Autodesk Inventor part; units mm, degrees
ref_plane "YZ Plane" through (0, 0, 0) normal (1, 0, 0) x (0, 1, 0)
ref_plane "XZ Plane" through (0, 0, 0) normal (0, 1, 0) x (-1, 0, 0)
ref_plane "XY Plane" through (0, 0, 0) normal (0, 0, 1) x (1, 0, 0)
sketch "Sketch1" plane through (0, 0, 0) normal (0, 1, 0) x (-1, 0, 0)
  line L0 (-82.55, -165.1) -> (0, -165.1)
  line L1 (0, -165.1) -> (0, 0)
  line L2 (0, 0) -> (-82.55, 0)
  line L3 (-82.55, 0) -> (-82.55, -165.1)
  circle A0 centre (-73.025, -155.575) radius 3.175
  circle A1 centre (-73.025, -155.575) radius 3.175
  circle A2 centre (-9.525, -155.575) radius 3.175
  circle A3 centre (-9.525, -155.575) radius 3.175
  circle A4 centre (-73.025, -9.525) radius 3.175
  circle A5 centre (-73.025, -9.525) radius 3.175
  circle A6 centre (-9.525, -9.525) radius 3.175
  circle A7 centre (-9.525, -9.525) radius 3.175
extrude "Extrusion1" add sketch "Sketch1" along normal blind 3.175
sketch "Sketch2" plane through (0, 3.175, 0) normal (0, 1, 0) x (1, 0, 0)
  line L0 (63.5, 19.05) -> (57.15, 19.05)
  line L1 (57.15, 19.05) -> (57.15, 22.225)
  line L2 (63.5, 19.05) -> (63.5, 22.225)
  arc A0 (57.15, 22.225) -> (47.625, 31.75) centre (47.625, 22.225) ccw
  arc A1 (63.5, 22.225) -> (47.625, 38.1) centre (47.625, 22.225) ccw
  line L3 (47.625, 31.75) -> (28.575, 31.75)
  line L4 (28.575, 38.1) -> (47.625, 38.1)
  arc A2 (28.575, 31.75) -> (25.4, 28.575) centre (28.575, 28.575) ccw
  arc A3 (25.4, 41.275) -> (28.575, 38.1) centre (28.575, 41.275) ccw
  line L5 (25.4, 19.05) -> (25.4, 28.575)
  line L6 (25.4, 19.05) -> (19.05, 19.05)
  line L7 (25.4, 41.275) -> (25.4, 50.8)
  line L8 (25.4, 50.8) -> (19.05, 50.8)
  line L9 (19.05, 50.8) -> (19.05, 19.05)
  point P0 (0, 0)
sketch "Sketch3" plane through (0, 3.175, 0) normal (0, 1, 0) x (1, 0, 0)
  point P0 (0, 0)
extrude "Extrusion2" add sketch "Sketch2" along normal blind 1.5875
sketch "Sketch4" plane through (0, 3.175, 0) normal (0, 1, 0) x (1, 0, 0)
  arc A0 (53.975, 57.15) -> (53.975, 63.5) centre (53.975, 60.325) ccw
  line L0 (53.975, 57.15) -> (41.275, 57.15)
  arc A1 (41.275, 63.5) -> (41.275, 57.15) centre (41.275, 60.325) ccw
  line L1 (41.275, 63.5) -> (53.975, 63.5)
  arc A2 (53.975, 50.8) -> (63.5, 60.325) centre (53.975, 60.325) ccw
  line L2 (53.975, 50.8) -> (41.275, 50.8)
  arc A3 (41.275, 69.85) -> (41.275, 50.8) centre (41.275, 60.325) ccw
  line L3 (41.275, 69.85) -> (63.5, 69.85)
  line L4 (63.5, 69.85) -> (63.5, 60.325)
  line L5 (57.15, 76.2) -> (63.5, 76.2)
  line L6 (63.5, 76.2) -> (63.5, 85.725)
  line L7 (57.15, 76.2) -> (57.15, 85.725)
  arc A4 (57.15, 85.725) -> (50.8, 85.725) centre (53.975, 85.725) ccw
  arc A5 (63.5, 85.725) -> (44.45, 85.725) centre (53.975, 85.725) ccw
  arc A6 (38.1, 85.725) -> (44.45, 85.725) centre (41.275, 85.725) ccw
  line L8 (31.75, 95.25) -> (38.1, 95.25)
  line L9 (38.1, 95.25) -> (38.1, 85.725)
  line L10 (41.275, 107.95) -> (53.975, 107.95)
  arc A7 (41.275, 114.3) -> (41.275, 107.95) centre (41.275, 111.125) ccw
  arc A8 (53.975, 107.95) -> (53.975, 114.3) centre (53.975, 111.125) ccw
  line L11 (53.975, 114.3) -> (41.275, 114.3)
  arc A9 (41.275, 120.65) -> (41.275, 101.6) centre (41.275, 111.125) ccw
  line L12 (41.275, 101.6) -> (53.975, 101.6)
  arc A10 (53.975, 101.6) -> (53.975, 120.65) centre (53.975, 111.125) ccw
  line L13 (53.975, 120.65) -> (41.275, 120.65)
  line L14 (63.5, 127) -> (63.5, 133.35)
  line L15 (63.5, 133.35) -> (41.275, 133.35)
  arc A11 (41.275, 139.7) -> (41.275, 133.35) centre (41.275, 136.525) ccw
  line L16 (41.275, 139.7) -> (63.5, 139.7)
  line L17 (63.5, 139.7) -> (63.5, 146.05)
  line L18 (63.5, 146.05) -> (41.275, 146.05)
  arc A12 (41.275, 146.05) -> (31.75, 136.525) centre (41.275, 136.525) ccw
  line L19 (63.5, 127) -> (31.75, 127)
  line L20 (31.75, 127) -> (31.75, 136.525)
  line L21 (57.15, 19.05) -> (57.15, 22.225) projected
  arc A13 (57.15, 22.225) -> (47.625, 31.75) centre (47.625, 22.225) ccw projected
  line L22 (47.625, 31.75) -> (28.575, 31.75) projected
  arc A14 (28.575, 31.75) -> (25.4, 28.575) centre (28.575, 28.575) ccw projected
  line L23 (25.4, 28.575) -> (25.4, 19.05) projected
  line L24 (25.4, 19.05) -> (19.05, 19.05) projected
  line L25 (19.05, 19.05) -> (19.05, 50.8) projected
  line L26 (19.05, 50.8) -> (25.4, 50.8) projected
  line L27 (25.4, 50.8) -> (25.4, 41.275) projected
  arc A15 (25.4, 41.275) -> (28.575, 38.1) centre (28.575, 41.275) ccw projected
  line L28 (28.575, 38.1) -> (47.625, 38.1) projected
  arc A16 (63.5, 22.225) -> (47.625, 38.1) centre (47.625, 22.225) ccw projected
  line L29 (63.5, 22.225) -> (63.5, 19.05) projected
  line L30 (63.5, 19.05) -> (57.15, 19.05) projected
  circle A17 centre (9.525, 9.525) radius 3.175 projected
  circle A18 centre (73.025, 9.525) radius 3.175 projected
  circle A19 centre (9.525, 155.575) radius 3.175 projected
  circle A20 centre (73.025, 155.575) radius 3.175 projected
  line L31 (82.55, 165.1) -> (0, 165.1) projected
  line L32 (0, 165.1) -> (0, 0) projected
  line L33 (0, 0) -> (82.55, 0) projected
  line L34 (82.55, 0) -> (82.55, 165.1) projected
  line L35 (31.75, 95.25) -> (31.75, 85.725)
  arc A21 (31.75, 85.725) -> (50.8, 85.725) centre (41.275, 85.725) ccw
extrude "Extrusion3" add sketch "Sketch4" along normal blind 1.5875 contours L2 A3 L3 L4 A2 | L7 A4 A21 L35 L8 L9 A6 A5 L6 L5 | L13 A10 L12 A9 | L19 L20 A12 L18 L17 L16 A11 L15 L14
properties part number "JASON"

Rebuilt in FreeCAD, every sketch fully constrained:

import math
import FreeCAD as App
import Part
import Sketcher
from FreeCAD import Vector
Q = App.Units.Quantity


def add_polygon(sketch, points):
    """Adds a closed chain of lines whose ends are joined by coincident constraints."""
    first, n = sketch.GeometryCount, len(points)
    for a, b in zip(points, points[1:] + points[:1]):
        sketch.addGeometry(Part.LineSegment(App.Vector(*a, 0), App.Vector(*b, 0)), False)
    for i in range(n):
        sketch.addConstraint(Sketcher.Constraint("Coincident", first + i, 2, first + (i + 1) % n, 1))

doc = App.newDocument("Part")
body = doc.addObject("PartDesign::Body", "Body")

# Sketch on XZ plane
sketch1 = body.newObject("Sketcher::SketchObject", "Sketch")
sketch1.AttachmentSupport = (doc.getObject("XZ_Plane"), [""])
sketch1.MapMode = "FlatFace"
add_polygon(sketch1, [(82.55, 0), (82.55, -165.1), (0, -165.1), (0, 0)])  # lines 0-3
sketch1.addGeometry(Part.Circle(Vector(73.025, -155.575, 0), Vector(0, 0, 1), 3.175), False)  # 4
sketch1.addGeometry(Part.Circle(Vector(9.525, -155.575, 0), Vector(0, 0, 1), 3.175), False)  # 5
sketch1.addGeometry(Part.Circle(Vector(73.025, -9.525, 0), Vector(0, 0, 1), 3.175), False)  # 6
sketch1.addGeometry(Part.Circle(Vector(9.525, -9.525, 0), Vector(0, 0, 1), 3.175), False)  # 7
sketch1.addConstraint([
    Sketcher.Constraint("Vertical", 0),
    Sketcher.Constraint("Horizontal", 1),
    Sketcher.Constraint("Vertical", 2),
    Sketcher.Constraint("Horizontal", 3),
    Sketcher.Constraint("Coincident", 2, 2, -1, 1),
    Sketcher.Constraint("Equal", 4, 5),
    Sketcher.Constraint("Equal", 5, 6),
    Sketcher.Constraint("Equal", 6, 7),
    Sketcher.Constraint("Horizontal", 4, 3, 5, 3),
    Sketcher.Constraint("Horizontal", 6, 3, 7, 3),
    Sketcher.Constraint("Vertical", 4, 3, 6, 3),
    Sketcher.Constraint("Vertical", 5, 3, 7, 3),
    Sketcher.Constraint("Diameter", 4, Q("0.25 in")),
    Sketcher.Constraint("DistanceY", 0, 2, 0, 1, Q("6.5 in")),
    Sketcher.Constraint("DistanceX", 1, 2, 1, 1, Q("3.25 in")),
    Sketcher.Constraint("DistanceX", 5, 3, 4, 3, Q("2.5 in")),
    Sketcher.Constraint("DistanceY", 4, 3, 6, 3, Q("5.75 in")),
    Sketcher.Constraint("DistanceX", -1, 1, 4, 3, Q("2.875 in")),
    Sketcher.Constraint("DistanceY", 4, 3, -1, 1, Q("6.125 in")),
])
pad1 = body.newObject("PartDesign::Pad", "Pad")
pad1.Profile = sketch1
pad1.Length = Q("0.125 in")
pad1.Reversed = True

# Sketch on XZ plane
sketch2 = body.newObject("Sketcher::SketchObject", "Sketch001")
sketch2.AttachmentSupport = (doc.getObject("XZ_Plane"), [""])
sketch2.MapMode = "FlatFace"
sketch2.AttachmentOffset = App.Placement(Vector(0, 0, -0.125 * 25.4), App.Rotation())
sketch2.addGeometry([
    Part.LineSegment(Vector(57.15, -19.05, 0), Vector(63.5, -19.05, 0)),  # 0
    Part.LineSegment(Vector(63.5, -19.05, 0), Vector(63.5, -22.225, 0)),  # 1
    Part.ArcOfCircle(Part.Circle(Vector(47.625, -22.225, 0), Vector(0, 0, 1), 15.875), math.radians(-90), math.radians(0)),  # 2
    Part.LineSegment(Vector(47.625, -38.1, 0), Vector(28.575, -38.1, 0)),  # 3
    Part.ArcOfCircle(Part.Circle(Vector(28.575, -41.275, 0), Vector(0, 0, 1), 3.175), math.radians(90), math.radians(180)),  # 4
    Part.LineSegment(Vector(25.4, -41.275, 0), Vector(25.4, -50.8, 0)),  # 5
    Part.LineSegment(Vector(25.4, -50.8, 0), Vector(19.05, -50.8, 0)),  # 6
    Part.LineSegment(Vector(19.05, -50.8, 0), Vector(19.05, -19.05, 0)),  # 7
    Part.LineSegment(Vector(19.05, -19.05, 0), Vector(25.4, -19.05, 0)),  # 8
    Part.LineSegment(Vector(25.4, -19.05, 0), Vector(25.4, -28.575, 0)),  # 9
    Part.ArcOfCircle(Part.Circle(Vector(28.575, -28.575, 0), Vector(0, 0, 1), 3.175), math.radians(180), math.radians(270)),  # 10
    Part.LineSegment(Vector(28.575, -31.75, 0), Vector(47.625, -31.75, 0)),  # 11
    Part.ArcOfCircle(Part.Circle(Vector(47.625, -22.225, 0), Vector(0, 0, 1), 9.525), math.radians(-90), math.radians(0)),  # 12
    Part.LineSegment(Vector(57.15, -22.225, 0), Vector(57.15, -19.05, 0)),  # 13
], False)
sketch2.addConstraint([
    Sketcher.Constraint("Coincident", 0, 2, 1, 1),
    Sketcher.Constraint("Tangent", 1, 2, 2, 2),
    Sketcher.Constraint("Tangent", 2, 1, 3, 1),
    Sketcher.Constraint("Tangent", 3, 2, 4, 1),
    Sketcher.Constraint("Tangent", 4, 2, 5, 1),
    Sketcher.Constraint("Coincident", 5, 2, 6, 1),
    Sketcher.Constraint("Coincident", 6, 2, 7, 1),
    Sketcher.Constraint("Coincident", 7, 2, 8, 1),
    Sketcher.Constraint("Coincident", 8, 2, 9, 1),
    Sketcher.Constraint("Tangent", 9, 2, 10, 1),
    Sketcher.Constraint("Tangent", 10, 2, 11, 1),
    Sketcher.Constraint("Tangent", 11, 2, 12, 1),
    Sketcher.Constraint("Tangent", 12, 2, 13, 1),
    Sketcher.Constraint("Coincident", 13, 2, 0, 1),
    Sketcher.Constraint("Horizontal", 0),
    Sketcher.Constraint("Vertical", 1),
    Sketcher.Constraint("Horizontal", 3),
    Sketcher.Constraint("Vertical", 5),
    Sketcher.Constraint("Horizontal", 6),
    Sketcher.Constraint("Vertical", 7),
    Sketcher.Constraint("Horizontal", 8),
    Sketcher.Constraint("Vertical", 9),
    Sketcher.Constraint("Horizontal", 11),
    Sketcher.Constraint("Vertical", 13),
    Sketcher.Constraint("Coincident", 12, 3, 2, 3),
    Sketcher.Constraint("Equal", 4, 10),
    Sketcher.Constraint("Horizontal", 0, 2, 7, 2),
    Sketcher.Constraint("Vertical", 4, 3, 10, 3),
    Sketcher.Constraint("Equal", 0, 6),
    Sketcher.Constraint("Equal", 5, 9),
    Sketcher.Constraint("DistanceX", -1, 1, 4, 2, Q("1 in")),
    Sketcher.Constraint("DistanceY", 5, 2, -1, 1, Q("2 in")),
    Sketcher.Constraint("Radius", 2, Q("0.625 in")),
    Sketcher.Constraint("Radius", 4, Q("0.125 in")),
    Sketcher.Constraint("Radius", 12, Q("0.375 in")),
    Sketcher.Constraint("DistanceX", 3, 2, 3, 1, Q("0.75 in")),
    Sketcher.Constraint("DistanceY", 7, 1, 7, 2, Q("1.25 in")),
])
pad2 = body.newObject("PartDesign::Pad", "Pad001")
pad2.Profile = sketch2
pad2.Length = Q("0.0625 in")
pad2.Reversed = True

# Sketch on XZ plane
sketch3 = body.newObject("Sketcher::SketchObject", "Sketch002")
sketch3.AttachmentSupport = (doc.getObject("XZ_Plane"), [""])
sketch3.MapMode = "FlatFace"
sketch3.AttachmentOffset = App.Placement(Vector(0, 0, -0.125 * 25.4), App.Rotation())
sketch3.addGeometry([
    Part.LineSegment(Vector(41.275, -50.8, 0), Vector(53.975, -50.8, 0)),  # 0
    Part.ArcOfCircle(Part.Circle(Vector(53.975, -60.325, 0), Vector(0, 0, 1), 9.525), math.radians(0), math.radians(90)),  # 1
    Part.LineSegment(Vector(63.5, -60.325, 0), Vector(63.5, -69.85, 0)),  # 2
    Part.LineSegment(Vector(63.5, -69.85, 0), Vector(41.275, -69.85, 0)),  # 3
    Part.ArcOfCircle(Part.Circle(Vector(41.275, -60.325, 0), Vector(0, 0, 1), 9.525), math.radians(90), math.radians(270)),  # 4
    Part.ArcOfCircle(Part.Circle(Vector(53.975, -60.325, 0), Vector(0, 0, 1), 3.175), math.radians(-90), math.radians(90)),  # 5
    Part.LineSegment(Vector(53.975, -57.15, 0), Vector(41.275, -57.15, 0)),  # 6
    Part.ArcOfCircle(Part.Circle(Vector(41.275, -60.325, 0), Vector(0, 0, 1), 3.175), math.radians(90), math.radians(270)),  # 7
    Part.LineSegment(Vector(41.275, -63.5, 0), Vector(53.975, -63.5, 0)),  # 8
    Part.LineSegment(Vector(57.15, -85.725, 0), Vector(57.15, -76.2, 0)),  # 9
    Part.LineSegment(Vector(57.15, -76.2, 0), Vector(63.5, -76.2, 0)),  # 10
    Part.LineSegment(Vector(63.5, -76.2, 0), Vector(63.5, -85.725, 0)),  # 11
    Part.ArcOfCircle(Part.Circle(Vector(53.975, -85.725, 0), Vector(0, 0, 1), 9.525), math.radians(180), math.radians(360)),  # 12
    Part.ArcOfCircle(Part.Circle(Vector(41.275, -85.725, 0), Vector(0, 0, 1), 3.175), math.radians(0), math.radians(180)),  # 13
    Part.LineSegment(Vector(38.1, -85.725, 0), Vector(38.1, -95.25, 0)),  # 14
    Part.LineSegment(Vector(38.1, -95.25, 0), Vector(31.75, -95.25, 0)),  # 15
    Part.LineSegment(Vector(31.75, -95.25, 0), Vector(31.75, -85.725, 0)),  # 16
    Part.ArcOfCircle(Part.Circle(Vector(41.275, -85.725, 0), Vector(0, 0, 1), 9.525), math.radians(0), math.radians(180)),  # 17
    Part.ArcOfCircle(Part.Circle(Vector(53.975, -85.725, 0), Vector(0, 0, 1), 3.175), math.radians(180), math.radians(360)),  # 18
    Part.LineSegment(Vector(53.975, -120.65, 0), Vector(41.275, -120.65, 0)),  # 19
    Part.ArcOfCircle(Part.Circle(Vector(41.275, -111.125, 0), Vector(0, 0, 1), 9.525), math.radians(90), math.radians(270)),  # 20
    Part.LineSegment(Vector(41.275, -101.6, 0), Vector(53.975, -101.6, 0)),  # 21
    Part.ArcOfCircle(Part.Circle(Vector(53.975, -111.125, 0), Vector(0, 0, 1), 9.525), math.radians(-90), math.radians(90)),  # 22
    Part.LineSegment(Vector(53.975, -107.95, 0), Vector(41.275, -107.95, 0)),  # 23
    Part.ArcOfCircle(Part.Circle(Vector(41.275, -111.125, 0), Vector(0, 0, 1), 3.175), math.radians(90), math.radians(270)),  # 24
    Part.LineSegment(Vector(41.275, -114.3, 0), Vector(53.975, -114.3, 0)),  # 25
    Part.ArcOfCircle(Part.Circle(Vector(53.975, -111.125, 0), Vector(0, 0, 1), 3.175), math.radians(-90), math.radians(90)),  # 26
    Part.LineSegment(Vector(31.75, -127, 0), Vector(63.5, -127, 0)),  # 27
    Part.LineSegment(Vector(63.5, -127, 0), Vector(63.5, -133.35, 0)),  # 28
    Part.LineSegment(Vector(63.5, -133.35, 0), Vector(41.275, -133.35, 0)),  # 29
    Part.ArcOfCircle(Part.Circle(Vector(41.275, -136.525, 0), Vector(0, 0, 1), 3.175), math.radians(90), math.radians(270)),  # 30
    Part.LineSegment(Vector(41.275, -139.7, 0), Vector(63.5, -139.7, 0)),  # 31
    Part.LineSegment(Vector(63.5, -139.7, 0), Vector(63.5, -146.05, 0)),  # 32
    Part.LineSegment(Vector(63.5, -146.05, 0), Vector(41.275, -146.05, 0)),  # 33
    Part.ArcOfCircle(Part.Circle(Vector(41.275, -136.525, 0), Vector(0, 0, 1), 9.525), math.radians(180), math.radians(270)),  # 34
    Part.LineSegment(Vector(31.75, -136.525, 0), Vector(31.75, -127, 0)),  # 35
], False)
sketch3.addConstraint([
    Sketcher.Constraint("Tangent", 0, 2, 1, 2),
    Sketcher.Constraint("Tangent", 1, 1, 2, 1),
    Sketcher.Constraint("Coincident", 2, 2, 3, 1),
    Sketcher.Constraint("Tangent", 3, 2, 4, 2),
    Sketcher.Constraint("Tangent", 4, 1, 0, 1),
    Sketcher.Constraint("Tangent", 5, 2, 6, 1),
    Sketcher.Constraint("Tangent", 6, 2, 7, 1),
    Sketcher.Constraint("Tangent", 7, 2, 8, 1),
    Sketcher.Constraint("Tangent", 8, 2, 5, 1),
    Sketcher.Constraint("Coincident", 9, 2, 10, 1),
    Sketcher.Constraint("Coincident", 10, 2, 11, 1),
    Sketcher.Constraint("Tangent", 11, 2, 12, 2),
    Sketcher.Constraint("Tangent", 12, 1, 13, 1),
    Sketcher.Constraint("Tangent", 13, 2, 14, 1),
    Sketcher.Constraint("Coincident", 14, 2, 15, 1),
    Sketcher.Constraint("Coincident", 15, 2, 16, 1),
    Sketcher.Constraint("Tangent", 16, 2, 17, 2),
    Sketcher.Constraint("Tangent", 17, 1, 18, 1),
    Sketcher.Constraint("Tangent", 18, 2, 9, 1),
    Sketcher.Constraint("Tangent", 19, 2, 20, 2),
    Sketcher.Constraint("Tangent", 20, 1, 21, 1),
    Sketcher.Constraint("Tangent", 21, 2, 22, 2),
    Sketcher.Constraint("Tangent", 22, 1, 19, 1),
    Sketcher.Constraint("Tangent", 23, 2, 24, 1),
    Sketcher.Constraint("Tangent", 24, 2, 25, 1),
    Sketcher.Constraint("Tangent", 25, 2, 26, 1),
    Sketcher.Constraint("Tangent", 26, 2, 23, 1),
    Sketcher.Constraint("Coincident", 27, 2, 28, 1),
    Sketcher.Constraint("Coincident", 28, 2, 29, 1),
    Sketcher.Constraint("Tangent", 29, 2, 30, 1),
    Sketcher.Constraint("Tangent", 30, 2, 31, 1),
    Sketcher.Constraint("Coincident", 31, 2, 32, 1),
    Sketcher.Constraint("Coincident", 32, 2, 33, 1),
    Sketcher.Constraint("Tangent", 33, 2, 34, 2),
    Sketcher.Constraint("Tangent", 34, 1, 35, 1),
    Sketcher.Constraint("Coincident", 35, 2, 27, 1),
    Sketcher.Constraint("Horizontal", 0),
    Sketcher.Constraint("Vertical", 2),
    Sketcher.Constraint("Horizontal", 3),
    Sketcher.Constraint("Horizontal", 6),
    Sketcher.Constraint("Horizontal", 8),
    Sketcher.Constraint("Vertical", 9),
    Sketcher.Constraint("Horizontal", 10),
    Sketcher.Constraint("Vertical", 11),
    Sketcher.Constraint("Vertical", 14),
    Sketcher.Constraint("Horizontal", 15),
    Sketcher.Constraint("Vertical", 16),
    Sketcher.Constraint("Horizontal", 19),
    Sketcher.Constraint("Horizontal", 21),
    Sketcher.Constraint("Horizontal", 23),
    Sketcher.Constraint("Horizontal", 25),
    Sketcher.Constraint("Horizontal", 27),
    Sketcher.Constraint("Vertical", 28),
    Sketcher.Constraint("Horizontal", 29),
    Sketcher.Constraint("Horizontal", 31),
    Sketcher.Constraint("Vertical", 32),
    Sketcher.Constraint("Horizontal", 33),
    Sketcher.Constraint("Vertical", 35),
    Sketcher.Constraint("Coincident", 5, 3, 1, 3),
    Sketcher.Constraint("Coincident", 7, 3, 4, 3),
    Sketcher.Constraint("Coincident", 17, 3, 13, 3),
    Sketcher.Constraint("Coincident", 18, 3, 12, 3),
    Sketcher.Constraint("Coincident", 24, 3, 20, 3),
    Sketcher.Constraint("Coincident", 34, 3, 30, 3),
    Sketcher.Constraint("Equal", 4, 12),
    Sketcher.Constraint("Equal", 7, 13),
    Sketcher.Constraint("Equal", 12, 17),
    Sketcher.Constraint("Equal", 17, 20),
    Sketcher.Constraint("Equal", 18, 24),
    Sketcher.Constraint("Equal", 26, 30),
    Sketcher.Constraint("Equal", 22, 34),
    Sketcher.Constraint("Horizontal", 12, 3, 13, 3),
    Sketcher.Constraint("Vertical", 5, 3, 12, 3),
    Sketcher.Constraint("Vertical", 7, 3, 13, 3),
    Sketcher.Constraint("Vertical", 17, 3, 20, 3),
    Sketcher.Constraint("Vertical", 18, 3, 22, 3),
    Sketcher.Constraint("Vertical", 18, 3, 26, 3),
    Sketcher.Constraint("Vertical", 24, 3, 30, 3),
    Sketcher.Constraint("Vertical", 11, 2, 27, 2),
    Sketcher.Constraint("Vertical", 28, 2, 31, 2),
    Sketcher.Constraint("Equal", 2, 9),
    Sketcher.Constraint("Equal", 11, 14),
    Sketcher.Constraint("Equal", 15, 28),
    Sketcher.Constraint("DistanceX", 0, 1, 0, 2, Q("0.5 in")),
    Sketcher.Constraint("DistanceY", 0, 2, -1, 1, Q("2 in")),
    Sketcher.Constraint("DistanceY", 9, 2, -1, 1, Q("3 in")),
    Sketcher.Constraint("DistanceX", -1, 1, 17, 1, Q("2 in")),
    Sketcher.Constraint("DistanceY", 20, 1, -1, 1, Q("4 in")),
    Sketcher.Constraint("DistanceY", 27, 2, -1, 1, Q("5 in")),
    Sketcher.Constraint("Radius", 1, Q("0.375 in")),
])
pad3 = body.newObject("PartDesign::Pad", "Pad002")
pad3.Profile = sketch3
pad3.Length = Q("0.0625 in")
pad3.Reversed = True

doc.recompute()
